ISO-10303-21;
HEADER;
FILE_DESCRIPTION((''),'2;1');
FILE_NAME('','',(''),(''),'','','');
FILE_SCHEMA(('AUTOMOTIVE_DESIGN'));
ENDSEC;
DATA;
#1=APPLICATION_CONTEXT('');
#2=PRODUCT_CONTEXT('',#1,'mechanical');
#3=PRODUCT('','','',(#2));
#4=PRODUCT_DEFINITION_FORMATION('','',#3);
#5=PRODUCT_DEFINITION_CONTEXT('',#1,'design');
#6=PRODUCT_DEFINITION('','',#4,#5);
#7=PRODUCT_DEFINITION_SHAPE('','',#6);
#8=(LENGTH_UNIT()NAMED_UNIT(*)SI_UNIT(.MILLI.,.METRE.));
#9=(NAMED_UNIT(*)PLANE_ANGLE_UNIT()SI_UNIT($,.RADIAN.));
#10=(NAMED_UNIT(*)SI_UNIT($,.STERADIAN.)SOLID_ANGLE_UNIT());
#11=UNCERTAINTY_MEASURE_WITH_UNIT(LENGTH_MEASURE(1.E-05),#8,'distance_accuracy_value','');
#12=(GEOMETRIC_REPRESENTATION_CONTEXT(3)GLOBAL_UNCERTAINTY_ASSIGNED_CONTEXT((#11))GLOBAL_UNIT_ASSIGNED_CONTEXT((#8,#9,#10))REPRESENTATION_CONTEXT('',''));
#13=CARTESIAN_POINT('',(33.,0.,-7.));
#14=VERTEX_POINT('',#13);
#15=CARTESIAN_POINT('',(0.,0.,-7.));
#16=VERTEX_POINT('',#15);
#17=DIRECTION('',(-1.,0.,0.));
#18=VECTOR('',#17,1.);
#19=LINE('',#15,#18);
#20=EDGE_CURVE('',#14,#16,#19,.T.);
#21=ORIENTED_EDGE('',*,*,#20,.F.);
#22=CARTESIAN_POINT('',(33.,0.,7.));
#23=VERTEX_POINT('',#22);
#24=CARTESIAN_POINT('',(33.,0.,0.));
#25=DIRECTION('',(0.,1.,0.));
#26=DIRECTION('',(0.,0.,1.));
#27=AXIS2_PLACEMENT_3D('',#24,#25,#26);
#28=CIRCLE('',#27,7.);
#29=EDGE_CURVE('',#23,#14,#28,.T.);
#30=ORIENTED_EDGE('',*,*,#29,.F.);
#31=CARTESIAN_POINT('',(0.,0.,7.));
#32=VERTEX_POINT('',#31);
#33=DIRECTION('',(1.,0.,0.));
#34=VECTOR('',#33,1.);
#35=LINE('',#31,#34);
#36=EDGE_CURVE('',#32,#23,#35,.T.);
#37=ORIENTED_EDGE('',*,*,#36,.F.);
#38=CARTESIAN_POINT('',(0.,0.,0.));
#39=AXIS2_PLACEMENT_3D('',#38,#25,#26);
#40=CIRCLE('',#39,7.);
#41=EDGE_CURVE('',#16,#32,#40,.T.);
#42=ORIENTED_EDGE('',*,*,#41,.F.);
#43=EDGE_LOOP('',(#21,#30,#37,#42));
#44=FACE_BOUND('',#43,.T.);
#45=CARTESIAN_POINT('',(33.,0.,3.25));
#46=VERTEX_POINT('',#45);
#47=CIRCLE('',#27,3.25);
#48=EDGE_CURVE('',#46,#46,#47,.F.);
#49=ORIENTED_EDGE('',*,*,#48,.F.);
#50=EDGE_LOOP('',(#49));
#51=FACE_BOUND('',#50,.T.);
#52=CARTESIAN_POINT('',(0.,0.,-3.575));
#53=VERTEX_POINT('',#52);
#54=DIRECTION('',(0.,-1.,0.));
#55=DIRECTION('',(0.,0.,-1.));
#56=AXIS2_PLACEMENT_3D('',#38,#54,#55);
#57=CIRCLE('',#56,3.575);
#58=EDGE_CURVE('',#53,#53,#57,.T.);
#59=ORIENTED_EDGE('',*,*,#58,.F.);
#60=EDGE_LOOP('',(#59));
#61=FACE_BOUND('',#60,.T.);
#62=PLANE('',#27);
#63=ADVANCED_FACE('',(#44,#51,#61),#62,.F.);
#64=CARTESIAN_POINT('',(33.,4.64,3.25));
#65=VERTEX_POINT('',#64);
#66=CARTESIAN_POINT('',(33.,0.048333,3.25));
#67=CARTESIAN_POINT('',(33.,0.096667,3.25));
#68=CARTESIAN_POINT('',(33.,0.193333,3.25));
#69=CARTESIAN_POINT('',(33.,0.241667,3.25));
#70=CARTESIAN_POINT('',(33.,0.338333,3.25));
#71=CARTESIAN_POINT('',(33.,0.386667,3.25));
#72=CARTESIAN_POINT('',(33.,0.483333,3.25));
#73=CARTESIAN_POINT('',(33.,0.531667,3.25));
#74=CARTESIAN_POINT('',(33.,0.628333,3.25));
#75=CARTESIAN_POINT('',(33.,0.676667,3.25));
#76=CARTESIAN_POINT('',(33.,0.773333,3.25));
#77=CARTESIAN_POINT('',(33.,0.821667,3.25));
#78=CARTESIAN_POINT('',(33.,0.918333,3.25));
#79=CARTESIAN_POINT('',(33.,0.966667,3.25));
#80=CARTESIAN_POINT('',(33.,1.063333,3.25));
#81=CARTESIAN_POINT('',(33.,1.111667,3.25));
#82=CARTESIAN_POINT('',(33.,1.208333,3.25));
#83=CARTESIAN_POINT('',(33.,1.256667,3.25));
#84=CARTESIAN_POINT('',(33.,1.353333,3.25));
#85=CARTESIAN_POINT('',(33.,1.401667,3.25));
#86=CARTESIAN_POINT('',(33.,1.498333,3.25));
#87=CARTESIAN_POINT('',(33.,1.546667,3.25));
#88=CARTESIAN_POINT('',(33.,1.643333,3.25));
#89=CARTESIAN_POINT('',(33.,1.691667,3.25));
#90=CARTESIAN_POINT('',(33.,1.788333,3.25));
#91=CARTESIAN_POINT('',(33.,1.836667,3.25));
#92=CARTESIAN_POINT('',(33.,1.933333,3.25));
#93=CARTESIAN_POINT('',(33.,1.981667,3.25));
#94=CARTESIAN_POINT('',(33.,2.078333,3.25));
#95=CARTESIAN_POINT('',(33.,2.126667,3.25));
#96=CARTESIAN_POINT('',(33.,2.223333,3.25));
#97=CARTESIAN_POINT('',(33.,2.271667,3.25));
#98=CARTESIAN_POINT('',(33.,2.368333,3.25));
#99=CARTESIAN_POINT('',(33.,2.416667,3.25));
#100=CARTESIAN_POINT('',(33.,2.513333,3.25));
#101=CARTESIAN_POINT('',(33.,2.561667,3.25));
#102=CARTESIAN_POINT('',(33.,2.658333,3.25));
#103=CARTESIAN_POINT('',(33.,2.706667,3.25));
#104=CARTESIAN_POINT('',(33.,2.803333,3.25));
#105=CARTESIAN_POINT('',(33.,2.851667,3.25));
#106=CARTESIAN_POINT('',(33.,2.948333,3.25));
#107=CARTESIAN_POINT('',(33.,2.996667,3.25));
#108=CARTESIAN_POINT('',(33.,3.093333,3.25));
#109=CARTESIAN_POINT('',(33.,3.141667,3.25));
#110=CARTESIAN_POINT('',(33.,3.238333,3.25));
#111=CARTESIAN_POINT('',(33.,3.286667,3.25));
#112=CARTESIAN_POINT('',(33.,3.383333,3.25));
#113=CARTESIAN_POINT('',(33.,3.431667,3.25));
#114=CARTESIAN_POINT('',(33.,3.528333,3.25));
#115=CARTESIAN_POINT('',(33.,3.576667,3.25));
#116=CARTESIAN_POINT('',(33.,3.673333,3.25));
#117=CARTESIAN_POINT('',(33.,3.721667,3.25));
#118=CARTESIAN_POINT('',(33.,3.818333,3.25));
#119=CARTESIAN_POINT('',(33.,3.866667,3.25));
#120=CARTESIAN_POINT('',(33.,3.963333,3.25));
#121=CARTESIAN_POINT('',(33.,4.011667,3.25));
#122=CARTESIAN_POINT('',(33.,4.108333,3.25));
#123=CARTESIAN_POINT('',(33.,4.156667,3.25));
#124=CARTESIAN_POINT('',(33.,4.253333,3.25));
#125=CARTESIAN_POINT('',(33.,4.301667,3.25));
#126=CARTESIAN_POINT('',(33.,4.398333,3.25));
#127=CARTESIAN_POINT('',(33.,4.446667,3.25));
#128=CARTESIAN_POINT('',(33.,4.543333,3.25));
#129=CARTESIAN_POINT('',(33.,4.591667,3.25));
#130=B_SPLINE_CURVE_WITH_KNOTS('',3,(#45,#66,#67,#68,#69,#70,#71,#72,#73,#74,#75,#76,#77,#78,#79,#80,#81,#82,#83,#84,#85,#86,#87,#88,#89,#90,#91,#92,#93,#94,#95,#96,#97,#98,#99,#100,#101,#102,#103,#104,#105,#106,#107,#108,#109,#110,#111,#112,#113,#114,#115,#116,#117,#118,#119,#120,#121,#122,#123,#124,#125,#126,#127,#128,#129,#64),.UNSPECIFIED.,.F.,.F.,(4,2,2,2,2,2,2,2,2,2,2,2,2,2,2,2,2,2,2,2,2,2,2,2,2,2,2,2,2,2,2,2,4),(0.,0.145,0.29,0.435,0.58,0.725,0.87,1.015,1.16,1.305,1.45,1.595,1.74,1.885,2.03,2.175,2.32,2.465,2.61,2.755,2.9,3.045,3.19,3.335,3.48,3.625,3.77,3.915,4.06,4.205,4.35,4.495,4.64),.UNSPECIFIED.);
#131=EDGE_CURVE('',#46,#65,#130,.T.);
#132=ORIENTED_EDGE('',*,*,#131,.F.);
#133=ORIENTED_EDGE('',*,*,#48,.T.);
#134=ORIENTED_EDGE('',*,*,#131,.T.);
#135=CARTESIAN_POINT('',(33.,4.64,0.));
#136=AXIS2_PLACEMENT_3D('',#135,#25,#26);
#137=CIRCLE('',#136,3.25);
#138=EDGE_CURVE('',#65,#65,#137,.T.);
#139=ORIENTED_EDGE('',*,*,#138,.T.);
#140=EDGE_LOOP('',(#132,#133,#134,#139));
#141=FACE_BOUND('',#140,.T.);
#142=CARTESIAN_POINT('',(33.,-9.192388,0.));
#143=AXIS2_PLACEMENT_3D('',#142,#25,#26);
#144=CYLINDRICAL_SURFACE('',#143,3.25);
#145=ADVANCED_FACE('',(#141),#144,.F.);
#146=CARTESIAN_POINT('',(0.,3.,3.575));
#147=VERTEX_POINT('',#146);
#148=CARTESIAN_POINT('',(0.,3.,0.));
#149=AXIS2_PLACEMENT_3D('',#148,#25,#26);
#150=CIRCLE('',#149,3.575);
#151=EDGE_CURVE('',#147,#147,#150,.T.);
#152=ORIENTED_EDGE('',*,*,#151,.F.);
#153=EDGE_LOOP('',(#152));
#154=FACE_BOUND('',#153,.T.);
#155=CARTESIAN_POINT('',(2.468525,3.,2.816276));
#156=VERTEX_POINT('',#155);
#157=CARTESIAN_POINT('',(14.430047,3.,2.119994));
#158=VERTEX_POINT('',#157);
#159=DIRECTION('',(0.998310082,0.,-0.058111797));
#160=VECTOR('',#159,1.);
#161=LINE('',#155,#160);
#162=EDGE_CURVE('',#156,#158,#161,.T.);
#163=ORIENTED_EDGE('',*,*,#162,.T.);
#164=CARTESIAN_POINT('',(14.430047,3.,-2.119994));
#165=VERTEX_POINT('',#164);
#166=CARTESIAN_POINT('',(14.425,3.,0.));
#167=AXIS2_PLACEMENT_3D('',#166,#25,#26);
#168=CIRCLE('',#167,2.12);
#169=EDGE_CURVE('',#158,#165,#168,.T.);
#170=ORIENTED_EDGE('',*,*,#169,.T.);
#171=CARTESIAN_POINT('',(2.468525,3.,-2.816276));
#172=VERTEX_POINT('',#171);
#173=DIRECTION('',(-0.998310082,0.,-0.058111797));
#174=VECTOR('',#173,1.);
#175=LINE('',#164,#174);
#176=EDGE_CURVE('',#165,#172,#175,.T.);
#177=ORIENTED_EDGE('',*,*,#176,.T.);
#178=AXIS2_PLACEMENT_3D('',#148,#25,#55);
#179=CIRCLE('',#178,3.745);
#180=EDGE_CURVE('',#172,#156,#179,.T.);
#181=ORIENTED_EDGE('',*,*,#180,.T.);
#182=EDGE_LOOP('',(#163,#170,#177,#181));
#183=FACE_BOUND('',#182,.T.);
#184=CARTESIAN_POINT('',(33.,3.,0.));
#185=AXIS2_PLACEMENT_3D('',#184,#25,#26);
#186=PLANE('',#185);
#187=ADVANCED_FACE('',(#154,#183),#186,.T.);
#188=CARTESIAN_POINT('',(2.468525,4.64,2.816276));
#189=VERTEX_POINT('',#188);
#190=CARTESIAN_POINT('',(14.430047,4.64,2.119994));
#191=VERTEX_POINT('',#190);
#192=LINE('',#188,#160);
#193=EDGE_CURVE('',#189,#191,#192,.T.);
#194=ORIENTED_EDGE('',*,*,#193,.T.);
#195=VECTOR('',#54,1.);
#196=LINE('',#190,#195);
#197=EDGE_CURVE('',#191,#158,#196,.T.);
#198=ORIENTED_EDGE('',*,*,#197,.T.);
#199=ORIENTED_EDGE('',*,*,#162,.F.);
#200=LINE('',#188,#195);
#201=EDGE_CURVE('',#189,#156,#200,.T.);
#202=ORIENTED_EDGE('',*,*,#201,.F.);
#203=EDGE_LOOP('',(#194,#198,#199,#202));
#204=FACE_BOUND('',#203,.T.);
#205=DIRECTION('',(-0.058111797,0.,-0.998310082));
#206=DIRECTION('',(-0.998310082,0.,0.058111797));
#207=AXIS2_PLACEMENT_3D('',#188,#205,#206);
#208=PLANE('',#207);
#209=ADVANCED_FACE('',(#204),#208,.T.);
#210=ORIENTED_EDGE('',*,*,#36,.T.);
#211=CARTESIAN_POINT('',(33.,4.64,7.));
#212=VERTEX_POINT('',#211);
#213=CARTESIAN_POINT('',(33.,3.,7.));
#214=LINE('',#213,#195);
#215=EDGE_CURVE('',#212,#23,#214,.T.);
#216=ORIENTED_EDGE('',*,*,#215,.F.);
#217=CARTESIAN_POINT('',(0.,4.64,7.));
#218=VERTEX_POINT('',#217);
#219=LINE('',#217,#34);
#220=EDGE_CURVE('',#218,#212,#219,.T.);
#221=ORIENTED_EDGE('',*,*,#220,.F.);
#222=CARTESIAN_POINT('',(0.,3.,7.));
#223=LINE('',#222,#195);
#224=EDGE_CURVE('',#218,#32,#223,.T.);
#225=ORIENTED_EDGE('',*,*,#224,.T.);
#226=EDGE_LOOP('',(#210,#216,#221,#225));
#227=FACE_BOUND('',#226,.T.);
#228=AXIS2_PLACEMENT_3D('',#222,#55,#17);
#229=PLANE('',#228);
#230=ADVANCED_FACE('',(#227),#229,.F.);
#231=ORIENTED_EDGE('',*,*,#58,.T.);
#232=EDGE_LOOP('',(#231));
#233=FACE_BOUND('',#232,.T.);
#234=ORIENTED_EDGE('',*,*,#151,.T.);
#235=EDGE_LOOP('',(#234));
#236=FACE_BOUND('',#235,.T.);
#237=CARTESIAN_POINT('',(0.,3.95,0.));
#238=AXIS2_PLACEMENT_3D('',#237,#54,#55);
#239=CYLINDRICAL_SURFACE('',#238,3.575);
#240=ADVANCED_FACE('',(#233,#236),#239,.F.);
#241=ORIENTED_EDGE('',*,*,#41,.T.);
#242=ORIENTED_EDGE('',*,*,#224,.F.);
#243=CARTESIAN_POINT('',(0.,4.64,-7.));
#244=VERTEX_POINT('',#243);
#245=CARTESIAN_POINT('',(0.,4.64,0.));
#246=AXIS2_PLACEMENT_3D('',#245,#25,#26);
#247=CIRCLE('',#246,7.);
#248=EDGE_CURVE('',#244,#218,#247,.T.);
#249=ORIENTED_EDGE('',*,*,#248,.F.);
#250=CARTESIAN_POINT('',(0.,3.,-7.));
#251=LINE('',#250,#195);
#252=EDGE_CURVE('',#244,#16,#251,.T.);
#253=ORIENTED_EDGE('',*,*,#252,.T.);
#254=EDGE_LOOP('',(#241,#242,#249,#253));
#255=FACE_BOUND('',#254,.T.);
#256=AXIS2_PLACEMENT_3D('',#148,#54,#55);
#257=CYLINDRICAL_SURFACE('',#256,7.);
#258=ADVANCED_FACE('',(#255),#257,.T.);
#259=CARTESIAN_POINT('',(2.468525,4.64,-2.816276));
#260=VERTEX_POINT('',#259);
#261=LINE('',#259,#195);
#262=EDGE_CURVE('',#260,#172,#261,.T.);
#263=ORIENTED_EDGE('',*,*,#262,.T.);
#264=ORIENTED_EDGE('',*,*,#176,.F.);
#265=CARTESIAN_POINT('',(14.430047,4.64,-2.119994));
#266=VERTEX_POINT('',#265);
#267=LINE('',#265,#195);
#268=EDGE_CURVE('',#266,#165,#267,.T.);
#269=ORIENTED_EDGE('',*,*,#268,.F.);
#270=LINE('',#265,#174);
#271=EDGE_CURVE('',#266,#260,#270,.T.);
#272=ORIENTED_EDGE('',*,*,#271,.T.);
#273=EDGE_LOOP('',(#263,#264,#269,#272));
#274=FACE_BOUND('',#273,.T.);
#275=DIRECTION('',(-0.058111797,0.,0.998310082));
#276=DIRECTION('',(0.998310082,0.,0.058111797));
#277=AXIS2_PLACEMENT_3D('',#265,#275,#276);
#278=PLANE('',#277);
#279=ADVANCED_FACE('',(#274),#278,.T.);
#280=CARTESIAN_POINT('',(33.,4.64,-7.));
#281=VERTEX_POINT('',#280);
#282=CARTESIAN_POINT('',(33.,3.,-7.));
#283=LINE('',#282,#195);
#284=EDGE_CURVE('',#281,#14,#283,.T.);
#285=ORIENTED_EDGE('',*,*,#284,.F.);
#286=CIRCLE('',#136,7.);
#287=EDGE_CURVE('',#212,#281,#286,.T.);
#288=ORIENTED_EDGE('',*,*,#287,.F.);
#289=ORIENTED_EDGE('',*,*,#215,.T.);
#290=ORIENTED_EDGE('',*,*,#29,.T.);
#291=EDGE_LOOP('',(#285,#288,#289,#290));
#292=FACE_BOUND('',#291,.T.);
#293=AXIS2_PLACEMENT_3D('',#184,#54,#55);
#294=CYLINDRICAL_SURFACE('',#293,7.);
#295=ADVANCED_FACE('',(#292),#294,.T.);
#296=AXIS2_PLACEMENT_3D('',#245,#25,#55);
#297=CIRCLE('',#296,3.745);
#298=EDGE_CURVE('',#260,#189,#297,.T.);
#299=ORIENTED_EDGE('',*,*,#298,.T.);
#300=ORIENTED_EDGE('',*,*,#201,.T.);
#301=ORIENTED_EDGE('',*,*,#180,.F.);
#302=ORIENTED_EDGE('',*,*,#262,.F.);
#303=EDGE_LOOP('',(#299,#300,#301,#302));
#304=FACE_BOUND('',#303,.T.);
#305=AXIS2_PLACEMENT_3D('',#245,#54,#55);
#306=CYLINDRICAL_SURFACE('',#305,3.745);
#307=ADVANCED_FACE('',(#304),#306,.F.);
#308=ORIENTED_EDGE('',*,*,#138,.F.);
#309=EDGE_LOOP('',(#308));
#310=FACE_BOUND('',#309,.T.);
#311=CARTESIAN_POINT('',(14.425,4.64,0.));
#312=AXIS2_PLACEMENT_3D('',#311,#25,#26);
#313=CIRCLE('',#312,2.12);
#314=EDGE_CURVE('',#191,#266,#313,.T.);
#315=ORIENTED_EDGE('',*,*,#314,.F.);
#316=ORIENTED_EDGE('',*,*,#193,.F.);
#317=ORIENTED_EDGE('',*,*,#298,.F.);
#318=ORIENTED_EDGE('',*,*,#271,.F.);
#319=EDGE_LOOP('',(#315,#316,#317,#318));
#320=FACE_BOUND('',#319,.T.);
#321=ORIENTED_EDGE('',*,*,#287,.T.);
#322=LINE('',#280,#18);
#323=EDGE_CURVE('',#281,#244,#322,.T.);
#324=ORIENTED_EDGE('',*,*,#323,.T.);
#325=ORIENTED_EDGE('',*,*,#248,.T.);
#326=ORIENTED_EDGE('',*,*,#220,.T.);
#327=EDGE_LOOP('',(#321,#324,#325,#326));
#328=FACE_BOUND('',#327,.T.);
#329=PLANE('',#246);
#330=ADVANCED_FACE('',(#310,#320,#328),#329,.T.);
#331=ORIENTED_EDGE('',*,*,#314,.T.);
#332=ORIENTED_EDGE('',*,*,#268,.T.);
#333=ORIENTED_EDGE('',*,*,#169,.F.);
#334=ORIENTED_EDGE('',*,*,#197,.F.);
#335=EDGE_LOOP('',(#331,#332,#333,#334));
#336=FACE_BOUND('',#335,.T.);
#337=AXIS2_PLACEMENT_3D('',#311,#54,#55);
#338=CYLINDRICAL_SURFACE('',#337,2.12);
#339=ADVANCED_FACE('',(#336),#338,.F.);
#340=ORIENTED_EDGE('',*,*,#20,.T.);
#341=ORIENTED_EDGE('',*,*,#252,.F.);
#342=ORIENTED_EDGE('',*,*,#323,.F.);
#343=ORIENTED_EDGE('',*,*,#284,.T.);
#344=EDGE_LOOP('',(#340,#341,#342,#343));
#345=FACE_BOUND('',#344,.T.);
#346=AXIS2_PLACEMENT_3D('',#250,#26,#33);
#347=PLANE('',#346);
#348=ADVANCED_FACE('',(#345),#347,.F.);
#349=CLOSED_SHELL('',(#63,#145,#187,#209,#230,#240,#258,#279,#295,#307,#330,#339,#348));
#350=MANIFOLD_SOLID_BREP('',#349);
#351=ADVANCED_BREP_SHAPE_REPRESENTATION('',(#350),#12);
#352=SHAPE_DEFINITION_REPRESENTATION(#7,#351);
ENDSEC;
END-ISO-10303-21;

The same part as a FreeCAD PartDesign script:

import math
import FreeCAD as App
import Part
import Sketcher
Q = App.Units.Quantity

doc = App.newDocument("Part")
body = doc.addObject("PartDesign::Body", "Body")

sketch1 = doc.addObject("Sketcher::SketchObject", "Sketch")
body.addObject(sketch1)
sketch1.AttachmentSupport = (doc.XZ_Plane, [""])
sketch1.MapMode = "FlatFace"
sketch1.addGeometry([
    Part.LineSegment(App.Vector(33, -7, 0), App.Vector(0, -7, 0)),
    Part.ArcOfCircle(Part.Circle(App.Vector(0, 0, 0), App.Vector(0, 0, 1), 7), math.radians(90), math.radians(270)),
    Part.LineSegment(App.Vector(0, 7, 0), App.Vector(33, 7, 0)),
    Part.ArcOfCircle(Part.Circle(App.Vector(33, 0, 0), App.Vector(0, 0, 1), 7), math.radians(-90), math.radians(90)),
], False)
sketch1.addConstraint([
    Sketcher.Constraint("Tangent", 0, 2, 1, 2),
    Sketcher.Constraint("Tangent", 1, 1, 2, 1),
    Sketcher.Constraint("Tangent", 2, 2, 3, 2),
    Sketcher.Constraint("Tangent", 3, 1, 0, 1),
    Sketcher.Constraint("Horizontal", 0),
    Sketcher.Constraint("Horizontal", 2),
    Sketcher.Constraint("Coincident", 1, 3, -1, 1),
    Sketcher.Constraint("Radius", 1, Q("7 mm")),
    Sketcher.Constraint("DistanceX", 0, 2, 0, 1, Q("33 mm")),
])
pad1 = doc.addObject("PartDesign::Pad", "Pad")
body.addObject(pad1)
pad1.Profile = sketch1
pad1.Length = 3
pad1.Reversed = True

sketch2 = doc.addObject("Sketcher::SketchObject", "Sketch001")
body.addObject(sketch2)
sketch2.AttachmentSupport = (doc.XZ_Plane, [""])
sketch2.MapMode = "FlatFace"
sketch2.addGeometry(Part.Circle(App.Vector(0, 0, 0), App.Vector(0, 0, 1), 3.6), False)
sketch2.addConstraint([
    Sketcher.Constraint("Coincident", 0, 3, -1, 1),
    Sketcher.Constraint("Diameter", 0, Q("7.15 mm")),
])
pocket1 = doc.addObject("PartDesign::Pocket", "Pocket")
body.addObject(pocket1)
pocket1.Profile = sketch2
pocket1.Length = 3.95

sketch3 = doc.addObject("Sketcher::SketchObject", "Sketch002")
body.addObject(sketch3)
sketch3.AttachmentSupport = (doc.XZ_Plane, [""])
sketch3.MapMode = "FlatFace"
sketch3.AttachmentOffset = App.Placement(App.Vector(0, 0, -3), App.Rotation())
sketch3.addGeometry([
    Part.LineSegment(App.Vector(0, 7, 0), App.Vector(33, 7, 0)),
    Part.ArcOfCircle(Part.Circle(App.Vector(33, 0, 0), App.Vector(0, 0, 1), 7), math.radians(-90), math.radians(90)),
    Part.LineSegment(App.Vector(33, -7, 0), App.Vector(0, -7, 0)),
    Part.ArcOfCircle(Part.Circle(App.Vector(0, 0, 0), App.Vector(0, 0, 1), 7), math.radians(90), math.radians(270)),
    Part.LineSegment(App.Vector(2.5, -2.8, 0), App.Vector(14.4, -2.1, 0)),
    Part.ArcOfCircle(Part.Circle(App.Vector(14.4, 0, 0), App.Vector(0, 0, 1), 2.1), math.radians(-90), math.radians(90)),
    Part.LineSegment(App.Vector(14.4, 2.1, 0), App.Vector(2.5, 2.8, 0)),
    Part.ArcOfCircle(Part.Circle(App.Vector(0, 0, 0), App.Vector(0, 0, 1), 3.7), math.radians(49), math.radians(311)),
], False)
sketch3.addConstraint([
    Sketcher.Constraint("Tangent", 0, 2, 1, 2),
    Sketcher.Constraint("Tangent", 1, 1, 2, 1),
    Sketcher.Constraint("Tangent", 2, 2, 3, 2),
    Sketcher.Constraint("Tangent", 3, 1, 0, 1),
    Sketcher.Constraint("Coincident", 4, 2, 5, 1),
    Sketcher.Constraint("Coincident", 5, 2, 6, 1),
    Sketcher.Constraint("Coincident", 6, 2, 7, 1),
    Sketcher.Constraint("Coincident", 7, 2, 4, 1),
    Sketcher.Constraint("Horizontal", 0),
    Sketcher.Constraint("Horizontal", 2),
    Sketcher.Constraint("Coincident", 3, 3, -1, 1),
    Sketcher.Constraint("Coincident", 7, 3, -1, 1),
    Sketcher.Constraint("Symmetric", 4, 2, 5, 2, -1),
    Sketcher.Constraint("Vertical", 6, 2, 7, 2),
    Sketcher.Constraint("Radius", 1, Q("7 mm")),
    Sketcher.Constraint("DistanceX", 0, 1, 0, 2, Q("33 mm")),
    Sketcher.Constraint("Radius", 5, Q("2.12 mm")),
    Sketcher.Constraint("Radius", 7, Q("3.745 mm")),
    Sketcher.Constraint("DistanceX", -1, 1, 5, 3, Q("14.425 mm")),
    Sketcher.Constraint("Distance", 4, Q("11.981771 mm")),
    Sketcher.Constraint("DistanceX", -1, 1, 4, 2, Q("14.430047 mm")),
])
pad2 = doc.addObject("PartDesign::Pad", "Pad001")
body.addObject(pad2)
pad2.Profile = sketch3
pad2.Length = 1.64
pad2.Reversed = True

sketch4 = doc.addObject("Sketcher::SketchObject", "Sketch003")
body.addObject(sketch4)
sketch4.AttachmentSupport = (doc.XZ_Plane, [""])
sketch4.MapMode = "FlatFace"
sketch4.AttachmentOffset = App.Placement(App.Vector(0, 0, -4.64), App.Rotation())
sketch4.addGeometry(Part.Circle(App.Vector(33, 0, 0), App.Vector(0, 0, 1), 3.2), False)
sketch4.addConstraint([
    Sketcher.Constraint("PointOnObject", 0, 3, -1),
    Sketcher.Constraint("Diameter", 0, Q("6.5 mm")),
    Sketcher.Constraint("DistanceX", -1, 1, 0, 3, Q("33 mm")),
])
pocket2 = doc.addObject("PartDesign::Pocket", "Pocket001")
body.addObject(pocket2)
pocket2.Profile = sketch4
pocket2.Length = 4.64
pocket2.Reversed = True

doc.recompute()
